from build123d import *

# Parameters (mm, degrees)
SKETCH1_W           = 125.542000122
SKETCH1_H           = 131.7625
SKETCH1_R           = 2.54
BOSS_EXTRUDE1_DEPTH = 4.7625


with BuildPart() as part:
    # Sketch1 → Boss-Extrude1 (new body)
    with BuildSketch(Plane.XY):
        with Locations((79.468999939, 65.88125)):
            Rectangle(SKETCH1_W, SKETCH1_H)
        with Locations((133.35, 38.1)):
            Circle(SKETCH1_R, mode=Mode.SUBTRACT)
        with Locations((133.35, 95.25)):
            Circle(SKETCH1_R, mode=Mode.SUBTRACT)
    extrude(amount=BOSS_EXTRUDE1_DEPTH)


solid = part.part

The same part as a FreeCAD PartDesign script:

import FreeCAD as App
import Part
import Sketcher
Q = App.Units.Quantity

doc = App.newDocument("Part")
body = doc.addObject("PartDesign::Body", "Body")

# Sketch on XY plane
sketch1 = body.newObject("Sketcher::SketchObject", "Sketch")
sketch1.AttachmentSupport = (doc.getObject("XY_Plane"), [""])
sketch1.MapMode = "FlatFace"
sketch1.addGeometry(Part.LineSegment(App.Vector(16.698, 131.7625, 0), App.Vector(16.698, 0, 0)), False)
sketch1.addGeometry(Part.LineSegment(App.Vector(16.698, 0, 0), App.Vector(142.24, 0, 0)), False)
sketch1.addGeometry(Part.LineSegment(App.Vector(142.24, 0, 0), App.Vector(142.24, 131.7625, 0)), False)
sketch1.addGeometry(Part.LineSegment(App.Vector(142.24, 131.7625, 0), App.Vector(16.698, 131.7625, 0)), False)
sketch1.addGeometry(Part.Circle(App.Vector(133.35, 38.1, 0), App.Vector(0, 0, 1), 2.54), False)
sketch1.addGeometry(Part.Circle(App.Vector(133.35, 95.25, 0), App.Vector(0, 0, 1), 2.54), False)
sketch1.addConstraint(Sketcher.Constraint("Coincident", 0, 2, 1, 1))
sketch1.addConstraint(Sketcher.Constraint("Coincident", 1, 2, 2, 1))
sketch1.addConstraint(Sketcher.Constraint("Coincident", 2, 2, 3, 1))
sketch1.addConstraint(Sketcher.Constraint("Coincident", 3, 2, 0, 1))
sketch1.addConstraint(Sketcher.Constraint("Vertical", 0))
sketch1.addConstraint(Sketcher.Constraint("Horizontal", 1))
sketch1.addConstraint(Sketcher.Constraint("Vertical", 2))
sketch1.addConstraint(Sketcher.Constraint("Horizontal", 3))
sketch1.addConstraint(Sketcher.Constraint("Equal", 4, 5))
sketch1.addConstraint(Sketcher.Constraint("PointOnObject", 0, 2, -1))
sketch1.addConstraint(Sketcher.Constraint("Vertical", 4, 3, 5, 3))
sketch1.addConstraint(Sketcher.Constraint("Diameter", 4, Q("0.2 in")))
sketch1.addConstraint(Sketcher.Constraint("DistanceY", -1, 1, 4, 3, Q("1.5 in")))
sketch1.addConstraint(Sketcher.Constraint("DistanceX", -1, 1, 1, 2, Q("5.6 in")))
sketch1.addConstraint(Sketcher.Constraint("DistanceY", 0, 2, 0, 1, Q("5.1875 in")))
sketch1.addConstraint(Sketcher.Constraint("DistanceX", -1, 1, 4, 3, Q("5.25 in")))
sketch1.addConstraint(Sketcher.Constraint("DistanceY", -1, 1, 5, 3, Q("3.75 in")))
sketch1.addConstraint(Sketcher.Constraint("DistanceX", 1, 1, 1, 2, Q("125.542 mm")))
pad1 = body.newObject("PartDesign::Pad", "Pad")
pad1.Profile = sketch1
pad1.Length = Q("0.1875 in")

doc.recompute()
